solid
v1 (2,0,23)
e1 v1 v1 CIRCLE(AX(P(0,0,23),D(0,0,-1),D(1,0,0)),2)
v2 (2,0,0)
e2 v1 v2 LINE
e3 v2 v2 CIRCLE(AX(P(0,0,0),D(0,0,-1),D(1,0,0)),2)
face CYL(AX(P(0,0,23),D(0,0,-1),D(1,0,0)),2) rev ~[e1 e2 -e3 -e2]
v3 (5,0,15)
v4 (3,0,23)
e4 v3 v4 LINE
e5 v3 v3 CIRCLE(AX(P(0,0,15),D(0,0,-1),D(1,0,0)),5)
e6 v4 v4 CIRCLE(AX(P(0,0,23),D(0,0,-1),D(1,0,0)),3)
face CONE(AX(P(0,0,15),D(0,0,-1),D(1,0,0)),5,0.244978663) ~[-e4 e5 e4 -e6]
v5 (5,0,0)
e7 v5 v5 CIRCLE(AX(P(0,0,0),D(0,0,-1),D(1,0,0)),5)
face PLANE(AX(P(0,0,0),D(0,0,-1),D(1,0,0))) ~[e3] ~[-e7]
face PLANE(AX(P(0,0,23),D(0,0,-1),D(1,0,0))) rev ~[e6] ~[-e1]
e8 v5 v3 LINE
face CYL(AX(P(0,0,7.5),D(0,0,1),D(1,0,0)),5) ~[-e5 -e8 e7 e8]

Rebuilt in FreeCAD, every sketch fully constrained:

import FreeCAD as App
import Part
import Sketcher

V = App.Vector


def add_polygon(sketch, points):
    """Adds a closed chain of lines whose ends are joined by coincident constraints."""
    first, n = sketch.GeometryCount, len(points)
    for a, b in zip(points, points[1:] + points[:1]):
        sketch.addGeometry(Part.LineSegment(App.Vector(*a, 0), App.Vector(*b, 0)), False)
    for i in range(n):
        sketch.addConstraint(Sketcher.Constraint("Coincident", first + i, 2, first + (i + 1) % n, 1))

doc = App.newDocument("Part")
body = doc.addObject("PartDesign::Body", "Body")

sketch1 = body.newObject("Sketcher::SketchObject", "Sketch")
sketch1.AttachmentSupport = (doc.getObject("XZ_Plane"), [""])
sketch1.MapMode = "FlatFace"
add_polygon(sketch1, [(2, 0), (5, 0), (5, 15), (3, 23), (2, 23)])
sketch1.addConstraint([
    Sketcher.Constraint("Horizontal", 0),
    Sketcher.Constraint("Vertical", 1),
    Sketcher.Constraint("Horizontal", 3),
    Sketcher.Constraint("Vertical", 4),
    Sketcher.Constraint("PointOnObject", 0, 2, -1),
    Sketcher.Constraint("DistanceX", 0, 1, 0, 2, 3.0),
    Sketcher.Constraint("DistanceX", 3, 2, 3, 1, 1.0),
    Sketcher.Constraint("DistanceY", 1, 1, 1, 2, 15.0),
    Sketcher.Constraint("DistanceY", 4, 2, 4, 1, 23.0),
    Sketcher.Constraint("DistanceX", -1, 1, 0, 2, 5.0),
])
revolution = body.newObject("PartDesign::Revolution", "Revolution")
revolution.Profile = sketch1
revolution.ReferenceAxis = (sketch1, ["V_Axis"])
revolution.Angle = 360

doc.recompute()
